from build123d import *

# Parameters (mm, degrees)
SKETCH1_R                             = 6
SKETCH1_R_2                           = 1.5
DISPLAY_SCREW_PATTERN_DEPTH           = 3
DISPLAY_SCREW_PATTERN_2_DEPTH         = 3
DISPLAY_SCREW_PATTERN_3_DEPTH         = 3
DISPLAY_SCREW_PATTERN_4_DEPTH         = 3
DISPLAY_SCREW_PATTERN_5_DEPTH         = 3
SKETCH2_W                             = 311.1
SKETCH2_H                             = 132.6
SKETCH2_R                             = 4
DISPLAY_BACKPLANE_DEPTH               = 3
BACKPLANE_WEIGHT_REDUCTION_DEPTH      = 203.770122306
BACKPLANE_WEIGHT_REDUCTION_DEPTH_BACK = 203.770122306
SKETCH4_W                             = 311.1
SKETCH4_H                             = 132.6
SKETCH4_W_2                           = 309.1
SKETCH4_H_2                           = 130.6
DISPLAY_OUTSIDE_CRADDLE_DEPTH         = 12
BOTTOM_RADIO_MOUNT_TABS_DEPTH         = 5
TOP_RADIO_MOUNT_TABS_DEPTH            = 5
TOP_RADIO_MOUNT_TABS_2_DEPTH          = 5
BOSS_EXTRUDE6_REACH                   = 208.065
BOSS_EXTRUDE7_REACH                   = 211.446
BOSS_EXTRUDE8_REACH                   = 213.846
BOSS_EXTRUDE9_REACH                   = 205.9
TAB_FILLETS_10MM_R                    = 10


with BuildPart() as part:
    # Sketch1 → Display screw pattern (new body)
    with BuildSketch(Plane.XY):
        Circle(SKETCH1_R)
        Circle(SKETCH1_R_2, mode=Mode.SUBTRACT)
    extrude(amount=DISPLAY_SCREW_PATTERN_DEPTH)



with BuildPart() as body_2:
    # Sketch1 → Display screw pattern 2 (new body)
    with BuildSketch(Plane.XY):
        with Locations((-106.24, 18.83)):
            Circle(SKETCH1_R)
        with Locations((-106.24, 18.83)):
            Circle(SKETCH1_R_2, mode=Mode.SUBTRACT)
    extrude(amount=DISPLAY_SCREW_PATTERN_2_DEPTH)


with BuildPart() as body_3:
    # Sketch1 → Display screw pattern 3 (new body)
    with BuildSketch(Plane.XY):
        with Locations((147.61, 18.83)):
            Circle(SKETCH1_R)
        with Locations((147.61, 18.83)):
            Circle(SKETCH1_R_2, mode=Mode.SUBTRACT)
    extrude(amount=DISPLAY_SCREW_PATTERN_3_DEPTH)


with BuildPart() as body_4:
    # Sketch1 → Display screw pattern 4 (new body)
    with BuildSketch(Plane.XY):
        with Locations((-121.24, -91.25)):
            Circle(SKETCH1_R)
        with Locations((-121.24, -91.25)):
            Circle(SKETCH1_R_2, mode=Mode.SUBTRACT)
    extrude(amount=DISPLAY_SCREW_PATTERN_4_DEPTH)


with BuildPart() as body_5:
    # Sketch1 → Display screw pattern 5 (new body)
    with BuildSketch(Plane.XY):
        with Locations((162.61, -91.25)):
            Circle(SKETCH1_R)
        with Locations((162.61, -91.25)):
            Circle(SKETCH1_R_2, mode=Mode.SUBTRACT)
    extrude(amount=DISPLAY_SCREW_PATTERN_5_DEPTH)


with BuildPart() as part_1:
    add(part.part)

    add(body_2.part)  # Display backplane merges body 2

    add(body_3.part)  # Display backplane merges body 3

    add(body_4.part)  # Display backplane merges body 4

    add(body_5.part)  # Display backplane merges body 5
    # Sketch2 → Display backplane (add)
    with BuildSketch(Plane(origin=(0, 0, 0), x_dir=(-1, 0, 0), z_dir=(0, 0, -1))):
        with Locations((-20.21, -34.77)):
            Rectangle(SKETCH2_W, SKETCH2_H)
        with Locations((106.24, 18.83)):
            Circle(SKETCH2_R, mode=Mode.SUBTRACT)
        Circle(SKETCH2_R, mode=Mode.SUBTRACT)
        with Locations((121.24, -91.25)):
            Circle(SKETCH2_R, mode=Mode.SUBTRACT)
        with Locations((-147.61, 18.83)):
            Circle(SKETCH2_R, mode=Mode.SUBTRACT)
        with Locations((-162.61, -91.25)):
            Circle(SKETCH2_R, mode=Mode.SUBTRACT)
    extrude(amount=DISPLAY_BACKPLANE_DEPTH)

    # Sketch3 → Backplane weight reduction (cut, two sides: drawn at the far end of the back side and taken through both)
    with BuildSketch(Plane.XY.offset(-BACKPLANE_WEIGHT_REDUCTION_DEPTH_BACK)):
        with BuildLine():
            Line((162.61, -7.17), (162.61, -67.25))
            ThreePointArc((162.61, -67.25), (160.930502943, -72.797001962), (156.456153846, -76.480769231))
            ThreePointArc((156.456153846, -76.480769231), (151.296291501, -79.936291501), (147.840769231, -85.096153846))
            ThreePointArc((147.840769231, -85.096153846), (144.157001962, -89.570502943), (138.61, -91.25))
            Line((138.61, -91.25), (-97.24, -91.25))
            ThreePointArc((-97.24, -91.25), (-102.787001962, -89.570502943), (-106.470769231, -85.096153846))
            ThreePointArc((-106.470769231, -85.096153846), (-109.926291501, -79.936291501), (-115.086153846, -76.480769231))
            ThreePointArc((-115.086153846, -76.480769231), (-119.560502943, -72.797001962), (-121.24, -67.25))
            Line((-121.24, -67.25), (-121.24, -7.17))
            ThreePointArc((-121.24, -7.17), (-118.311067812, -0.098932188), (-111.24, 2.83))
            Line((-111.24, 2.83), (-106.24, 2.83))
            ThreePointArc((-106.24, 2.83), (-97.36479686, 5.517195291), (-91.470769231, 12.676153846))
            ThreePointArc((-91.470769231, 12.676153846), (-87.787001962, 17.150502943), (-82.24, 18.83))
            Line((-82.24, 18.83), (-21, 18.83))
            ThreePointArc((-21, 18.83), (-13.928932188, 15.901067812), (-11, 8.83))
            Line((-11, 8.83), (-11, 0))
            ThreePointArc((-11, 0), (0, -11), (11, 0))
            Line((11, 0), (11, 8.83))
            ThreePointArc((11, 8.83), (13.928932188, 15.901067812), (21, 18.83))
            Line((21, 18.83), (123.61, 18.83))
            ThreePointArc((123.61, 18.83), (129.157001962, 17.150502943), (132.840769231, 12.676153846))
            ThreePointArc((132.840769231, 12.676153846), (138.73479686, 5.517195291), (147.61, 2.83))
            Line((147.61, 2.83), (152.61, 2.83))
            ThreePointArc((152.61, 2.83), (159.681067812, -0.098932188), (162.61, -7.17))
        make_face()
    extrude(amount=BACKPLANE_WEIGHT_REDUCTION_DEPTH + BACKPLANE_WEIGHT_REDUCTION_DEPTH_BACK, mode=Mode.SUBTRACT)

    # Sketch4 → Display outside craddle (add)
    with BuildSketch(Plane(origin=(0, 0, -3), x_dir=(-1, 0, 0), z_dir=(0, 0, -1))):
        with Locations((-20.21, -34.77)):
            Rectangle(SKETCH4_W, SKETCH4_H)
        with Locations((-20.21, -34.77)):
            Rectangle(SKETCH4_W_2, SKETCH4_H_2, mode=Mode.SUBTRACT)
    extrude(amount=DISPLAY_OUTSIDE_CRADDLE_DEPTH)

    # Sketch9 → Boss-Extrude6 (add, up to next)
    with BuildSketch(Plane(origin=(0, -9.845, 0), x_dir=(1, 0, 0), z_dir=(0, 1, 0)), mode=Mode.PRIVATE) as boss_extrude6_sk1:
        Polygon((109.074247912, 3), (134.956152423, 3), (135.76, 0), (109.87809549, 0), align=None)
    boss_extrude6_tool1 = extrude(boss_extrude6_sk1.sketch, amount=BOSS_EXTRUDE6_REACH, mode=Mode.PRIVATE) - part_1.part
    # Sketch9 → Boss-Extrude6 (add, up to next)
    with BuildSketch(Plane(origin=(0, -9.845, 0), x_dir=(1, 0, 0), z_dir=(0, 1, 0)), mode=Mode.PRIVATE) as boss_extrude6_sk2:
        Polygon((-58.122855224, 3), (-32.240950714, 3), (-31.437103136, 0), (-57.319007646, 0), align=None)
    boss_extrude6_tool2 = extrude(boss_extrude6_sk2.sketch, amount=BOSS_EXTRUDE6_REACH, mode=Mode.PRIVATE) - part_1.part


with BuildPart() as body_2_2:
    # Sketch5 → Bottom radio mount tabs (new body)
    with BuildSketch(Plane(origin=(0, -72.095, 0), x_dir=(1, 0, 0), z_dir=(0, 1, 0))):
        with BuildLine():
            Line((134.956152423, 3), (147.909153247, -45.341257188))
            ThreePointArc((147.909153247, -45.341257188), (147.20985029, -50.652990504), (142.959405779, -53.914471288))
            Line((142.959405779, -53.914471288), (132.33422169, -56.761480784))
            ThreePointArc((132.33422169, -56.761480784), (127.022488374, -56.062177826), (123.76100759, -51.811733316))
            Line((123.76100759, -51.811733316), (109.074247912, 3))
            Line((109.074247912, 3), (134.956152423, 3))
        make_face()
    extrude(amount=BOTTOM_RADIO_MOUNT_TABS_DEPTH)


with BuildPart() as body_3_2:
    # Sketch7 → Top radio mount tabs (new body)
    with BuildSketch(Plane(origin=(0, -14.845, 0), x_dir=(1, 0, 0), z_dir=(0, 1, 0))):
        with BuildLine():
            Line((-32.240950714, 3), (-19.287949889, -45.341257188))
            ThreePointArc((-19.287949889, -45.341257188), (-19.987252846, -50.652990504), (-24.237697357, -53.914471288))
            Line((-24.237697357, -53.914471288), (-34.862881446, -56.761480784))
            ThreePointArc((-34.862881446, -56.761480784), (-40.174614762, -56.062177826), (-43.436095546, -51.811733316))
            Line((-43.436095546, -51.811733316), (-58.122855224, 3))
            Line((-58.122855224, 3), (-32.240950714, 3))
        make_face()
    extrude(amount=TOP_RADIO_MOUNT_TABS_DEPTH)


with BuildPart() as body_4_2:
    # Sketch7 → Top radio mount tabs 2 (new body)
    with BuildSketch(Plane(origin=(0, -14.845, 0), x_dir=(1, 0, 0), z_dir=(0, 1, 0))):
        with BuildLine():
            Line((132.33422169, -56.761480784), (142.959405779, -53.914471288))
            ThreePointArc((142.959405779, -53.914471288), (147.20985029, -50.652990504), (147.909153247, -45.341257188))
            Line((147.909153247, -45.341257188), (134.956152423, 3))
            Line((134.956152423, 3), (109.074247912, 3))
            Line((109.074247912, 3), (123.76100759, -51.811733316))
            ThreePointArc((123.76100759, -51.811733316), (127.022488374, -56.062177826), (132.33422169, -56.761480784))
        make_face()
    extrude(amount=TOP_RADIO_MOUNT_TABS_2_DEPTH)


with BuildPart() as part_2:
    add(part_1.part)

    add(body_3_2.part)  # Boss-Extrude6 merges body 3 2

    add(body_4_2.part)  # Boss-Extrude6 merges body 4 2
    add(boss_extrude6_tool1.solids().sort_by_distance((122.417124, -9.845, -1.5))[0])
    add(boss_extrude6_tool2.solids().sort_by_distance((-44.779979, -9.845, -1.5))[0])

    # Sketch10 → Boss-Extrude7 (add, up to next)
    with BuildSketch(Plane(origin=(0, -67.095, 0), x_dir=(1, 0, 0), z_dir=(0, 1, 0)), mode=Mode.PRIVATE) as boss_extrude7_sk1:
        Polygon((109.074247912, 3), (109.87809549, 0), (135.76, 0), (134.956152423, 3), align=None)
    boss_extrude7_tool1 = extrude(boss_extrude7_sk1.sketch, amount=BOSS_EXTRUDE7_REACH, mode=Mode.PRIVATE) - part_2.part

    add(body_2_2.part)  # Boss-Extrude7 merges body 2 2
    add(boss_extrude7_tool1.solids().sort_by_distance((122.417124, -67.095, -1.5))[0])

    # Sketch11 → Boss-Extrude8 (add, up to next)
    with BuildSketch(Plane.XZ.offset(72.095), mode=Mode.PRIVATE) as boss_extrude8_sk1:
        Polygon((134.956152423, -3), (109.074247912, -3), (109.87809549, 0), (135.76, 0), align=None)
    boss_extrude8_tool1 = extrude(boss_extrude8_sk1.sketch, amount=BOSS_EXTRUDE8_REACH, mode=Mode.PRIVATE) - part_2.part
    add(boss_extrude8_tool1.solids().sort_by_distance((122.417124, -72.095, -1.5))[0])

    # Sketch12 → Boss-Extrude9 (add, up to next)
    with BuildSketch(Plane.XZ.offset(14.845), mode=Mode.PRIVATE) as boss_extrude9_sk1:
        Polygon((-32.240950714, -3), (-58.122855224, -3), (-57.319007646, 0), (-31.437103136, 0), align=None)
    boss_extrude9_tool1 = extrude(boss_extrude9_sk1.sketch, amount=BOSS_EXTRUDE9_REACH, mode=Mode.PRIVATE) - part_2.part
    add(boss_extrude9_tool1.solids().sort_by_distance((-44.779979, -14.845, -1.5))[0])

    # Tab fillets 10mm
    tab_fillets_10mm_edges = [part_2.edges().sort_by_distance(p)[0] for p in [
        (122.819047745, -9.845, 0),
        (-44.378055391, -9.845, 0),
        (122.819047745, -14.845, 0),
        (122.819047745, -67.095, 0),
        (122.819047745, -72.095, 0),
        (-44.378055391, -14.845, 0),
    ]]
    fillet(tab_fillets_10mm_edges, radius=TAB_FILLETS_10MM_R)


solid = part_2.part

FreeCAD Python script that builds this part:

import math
import FreeCAD as App
import Part
import Sketcher
from FreeCAD import Vector
Q = App.Units.Quantity


def edges_at(feature, points):
    """Names of the edges that pass closest to the given points."""
    edges = feature.Shape.Edges
    near = lambda p: min(range(len(edges)), key=lambda i: edges[i].distToShape(Part.Vertex(*p))[0])
    return sorted({f"Edge{near(p) + 1}" for p in points})


def add_polygon(sketch, points):
    """Adds a closed chain of lines whose ends are joined by coincident constraints."""
    first, n = sketch.GeometryCount, len(points)
    for a, b in zip(points, points[1:] + points[:1]):
        sketch.addGeometry(Part.LineSegment(App.Vector(*a, 0), App.Vector(*b, 0)), False)
    for i in range(n):
        sketch.addConstraint(Sketcher.Constraint("Coincident", first + i, 2, first + (i + 1) % n, 1))

doc = App.newDocument("Part")
body = doc.addObject("PartDesign::Body", "Body")

# Sketch on XY plane
sketch1 = body.newObject("Sketcher::SketchObject", "Sketch")
sketch1.AttachmentSupport = (doc.getObject("XY_Plane"), [""])
sketch1.MapMode = "FlatFace"
sketch1.addGeometry(Part.Circle(Vector(0, 0, 0), Vector(0, 0, 1), 6), False)
sketch1.addGeometry(Part.Circle(Vector(0, 0, 0), Vector(0, 0, 1), 1.5), False)
sketch1.addConstraint(Sketcher.Constraint("Coincident", 0, 3, -1, 1))
sketch1.addConstraint(Sketcher.Constraint("Coincident", 1, 3, -1, 1))
sketch1.addConstraint(Sketcher.Constraint("Diameter", 0, Q("12 mm")))
sketch1.addConstraint(Sketcher.Constraint("Diameter", 1, Q("3 mm")))
pad1 = body.newObject("PartDesign::Pad", "Pad")
pad1.Profile = sketch1
pad1.Length = 3
body2 = doc.addObject("PartDesign::Body", "Body001")

# Sketch on XY plane
sketch2 = body2.newObject("Sketcher::SketchObject", "Sketch001")
sketch2.AttachmentSupport = (doc.getObject("XY_Plane001"), [""])
sketch2.MapMode = "FlatFace"
sketch2.addGeometry(Part.Circle(Vector(-106.24, 18.83, 0), Vector(0, 0, 1), 6), False)
sketch2.addGeometry(Part.Circle(Vector(-106.24, 18.83, 0), Vector(0, 0, 1), 1.5), False)
sketch2.addConstraint(Sketcher.Constraint("Coincident", 1, 3, 0, 3))
sketch2.addConstraint(Sketcher.Constraint("Diameter", 0, Q("12 mm")))
sketch2.addConstraint(Sketcher.Constraint("Diameter", 1, Q("3 mm")))
sketch2.addConstraint(Sketcher.Constraint("DistanceX", 0, 3, -1, 1, Q("106.24 mm")))
sketch2.addConstraint(Sketcher.Constraint("DistanceY", -1, 1, 0, 3, Q("18.83 mm")))
pad2 = body2.newObject("PartDesign::Pad", "Pad001")
pad2.Profile = sketch2
pad2.Length = 3
body3 = doc.addObject("PartDesign::Body", "Body002")

# Sketch on XY plane
sketch3 = body3.newObject("Sketcher::SketchObject", "Sketch002")
sketch3.AttachmentSupport = (doc.getObject("XY_Plane002"), [""])
sketch3.MapMode = "FlatFace"
sketch3.addGeometry(Part.Circle(Vector(147.61, 18.83, 0), Vector(0, 0, 1), 6), False)
sketch3.addGeometry(Part.Circle(Vector(147.61, 18.83, 0), Vector(0, 0, 1), 1.5), False)
sketch3.addConstraint(Sketcher.Constraint("Coincident", 1, 3, 0, 3))
sketch3.addConstraint(Sketcher.Constraint("Diameter", 0, Q("12 mm")))
sketch3.addConstraint(Sketcher.Constraint("Diameter", 1, Q("3 mm")))
sketch3.addConstraint(Sketcher.Constraint("DistanceX", -1, 1, 0, 3, Q("147.61 mm")))
sketch3.addConstraint(Sketcher.Constraint("DistanceY", -1, 1, 0, 3, Q("18.83 mm")))
pad3 = body3.newObject("PartDesign::Pad", "Pad002")
pad3.Profile = sketch3
pad3.Length = 3
body4 = doc.addObject("PartDesign::Body", "Body003")

# Sketch on XY plane
sketch4 = body4.newObject("Sketcher::SketchObject", "Sketch003")
sketch4.AttachmentSupport = (doc.getObject("XY_Plane003"), [""])
sketch4.MapMode = "FlatFace"
sketch4.addGeometry(Part.Circle(Vector(-121.24, -91.25, 0), Vector(0, 0, 1), 6), False)
sketch4.addGeometry(Part.Circle(Vector(-121.24, -91.25, 0), Vector(0, 0, 1), 1.5), False)
sketch4.addConstraint(Sketcher.Constraint("Coincident", 1, 3, 0, 3))
sketch4.addConstraint(Sketcher.Constraint("Diameter", 0, Q("12 mm")))
sketch4.addConstraint(Sketcher.Constraint("Diameter", 1, Q("3 mm")))
sketch4.addConstraint(Sketcher.Constraint("DistanceX", 0, 3, -1, 1, Q("121.24 mm")))
sketch4.addConstraint(Sketcher.Constraint("DistanceY", 0, 3, -1, 1, Q("91.25 mm")))
pad4 = body4.newObject("PartDesign::Pad", "Pad003")
pad4.Profile = sketch4
pad4.Length = 3
body5 = doc.addObject("PartDesign::Body", "Body004")

# Sketch on XY plane
sketch5 = body5.newObject("Sketcher::SketchObject", "Sketch004")
sketch5.AttachmentSupport = (doc.getObject("XY_Plane004"), [""])
sketch5.MapMode = "FlatFace"
sketch5.addGeometry(Part.Circle(Vector(162.61, -91.25, 0), Vector(0, 0, 1), 6), False)
sketch5.addGeometry(Part.Circle(Vector(162.61, -91.25, 0), Vector(0, 0, 1), 1.5), False)
sketch5.addConstraint(Sketcher.Constraint("Coincident", 1, 3, 0, 3))
sketch5.addConstraint(Sketcher.Constraint("Diameter", 0, Q("12 mm")))
sketch5.addConstraint(Sketcher.Constraint("Diameter", 1, Q("3 mm")))
sketch5.addConstraint(Sketcher.Constraint("DistanceX", -1, 1, 0, 3, Q("162.61 mm")))
sketch5.addConstraint(Sketcher.Constraint("DistanceY", 0, 3, -1, 1, Q("91.25 mm")))
pad5 = body5.newObject("PartDesign::Pad", "Pad004")
pad5.Profile = sketch5
pad5.Length = 3
body.AllowCompound = True
doc.recompute()

boolean = body.newObject("PartDesign::Boolean", "Boolean")
boolean.Type = "Fuse"
boolean.addObjects([body2])
doc.recompute()

boolean2 = body.newObject("PartDesign::Boolean", "Boolean001")
boolean2.Type = "Fuse"
boolean2.addObjects([body3])
doc.recompute()

boolean3 = body.newObject("PartDesign::Boolean", "Boolean002")
boolean3.Type = "Fuse"
boolean3.addObjects([body4])
doc.recompute()

boolean4 = body.newObject("PartDesign::Boolean", "Boolean003")
boolean4.Type = "Fuse"
boolean4.addObjects([body5])

# Sketch on XY plane
sketch6 = body.newObject("Sketcher::SketchObject", "Sketch005")
sketch6.AttachmentSupport = (doc.getObject("XY_Plane"), [""])
sketch6.MapMode = "FlatFace"
add_polygon(sketch6, [(175.76, 31.53), (175.76, -101.07), (-135.34, -101.07), (-135.34, 31.53)])  # lines 0-3
sketch6.addGeometry(Part.Circle(Vector(162.61, -91.25, 0), Vector(0, 0, 1), 4), False)  # 4
sketch6.addGeometry(Part.Circle(Vector(-121.24, -91.25, 0), Vector(0, 0, 1), 4), False)  # 5
sketch6.addGeometry(Part.Circle(Vector(147.61, 18.83, 0), Vector(0, 0, 1), 4), False)  # 6
sketch6.addGeometry(Part.Circle(Vector(0, 0, 0), Vector(0, 0, 1), 4), False)  # 7
sketch6.addGeometry(Part.Circle(Vector(-106.24, 18.83, 0), Vector(0, 0, 1), 4), False)  # 8
sketch6.addConstraint(Sketcher.Constraint("Vertical", 0))
sketch6.addConstraint(Sketcher.Constraint("Horizontal", 1))
sketch6.addConstraint(Sketcher.Constraint("Vertical", 2))
sketch6.addConstraint(Sketcher.Constraint("Horizontal", 3))
sketch6.addConstraint(Sketcher.Constraint("Coincident", 7, 3, -1, 1))
sketch6.addConstraint(Sketcher.Constraint("Equal", 4, 5))
sketch6.addConstraint(Sketcher.Constraint("Equal", 5, 6))
sketch6.addConstraint(Sketcher.Constraint("Equal", 6, 7))
sketch6.addConstraint(Sketcher.Constraint("Equal", 7, 8))
sketch6.addConstraint(Sketcher.Constraint("Horizontal", 4, 3, 5, 3))
sketch6.addConstraint(Sketcher.Constraint("Horizontal", 6, 3, 8, 3))
sketch6.addConstraint(Sketcher.Constraint("Diameter", 4, Q("8 mm")))
sketch6.addConstraint(Sketcher.Constraint("DistanceX", 1, 2, 1, 1, Q("311.1 mm")))
sketch6.addConstraint(Sketcher.Constraint("DistanceY", 0, 2, 0, 1, Q("132.6 mm")))
sketch6.addConstraint(Sketcher.Constraint("DistanceX", 6, 3, 4, 3, Q("15 mm")))
sketch6.addConstraint(Sketcher.Constraint("DistanceX", 5, 3, 8, 3, Q("15 mm")))
sketch6.addConstraint(Sketcher.Constraint("DistanceX", 5, 3, 0, 2, Q("297 mm")))
sketch6.addConstraint(Sketcher.Constraint("DistanceY", 0, 2, 6, 3, Q("119.9 mm")))
sketch6.addConstraint(Sketcher.Constraint("DistanceX", -1, 1, 4, 3, Q("162.61 mm")))
sketch6.addConstraint(Sketcher.Constraint("DistanceY", 4, 3, -1, 1, Q("91.25 mm")))
sketch6.addConstraint(Sketcher.Constraint("DistanceX", 5, 3, -1, 1, Q("121.24 mm")))
sketch6.addConstraint(Sketcher.Constraint("DistanceY", -1, 1, 6, 3, Q("18.83 mm")))
pad6 = body.newObject("PartDesign::Pad", "Pad005")
pad6.Profile = sketch6
pad6.Length = 3
pad6.Reversed = True

# Sketch on XY plane
sketch7 = body.newObject("Sketcher::SketchObject", "Sketch006")
sketch7.AttachmentSupport = (doc.getObject("XY_Plane"), [""])
sketch7.MapMode = "FlatFace"
sketch7.addGeometry(Part.LineSegment(Vector(162.61, -67.25, 0), Vector(162.61, -7.17, 0)), False)
sketch7.addGeometry(Part.ArcOfCircle(Part.Circle(Vector(152.61, -7.17, 0), Vector(0, 0, 1), 10), math.radians(0), math.radians(90)), False)
sketch7.addGeometry(Part.LineSegment(Vector(152.61, 2.83, 0), Vector(147.61, 2.83, 0)), False)
sketch7.addGeometry(Part.ArcOfCircle(Part.Circle(Vector(147.61, 18.83, 0), Vector(0, 0, 1), 16), math.radians(-157.380135), math.radians(-90)), False)
sketch7.addGeometry(Part.ArcOfCircle(Part.Circle(Vector(123.61, 8.83, 0), Vector(0, 0, 1), 10), math.radians(22.619865), math.radians(90)), False)
sketch7.addGeometry(Part.LineSegment(Vector(123.61, 18.83, 0), Vector(21, 18.83, 0)), False)
sketch7.addGeometry(Part.ArcOfCircle(Part.Circle(Vector(21, 8.83, 0), Vector(0, 0, 1), 10), math.radians(90), math.radians(180)), False)
sketch7.addGeometry(Part.LineSegment(Vector(11, 8.83, 0), Vector(11, 0, 0)), False)
sketch7.addGeometry(Part.ArcOfCircle(Part.Circle(Vector(0, 0, 0), Vector(0, 0, 1), 11), math.radians(180), math.radians(360)), False)
sketch7.addGeometry(Part.LineSegment(Vector(-11, 0, 0), Vector(-11, 8.83, 0)), False)
sketch7.addGeometry(Part.ArcOfCircle(Part.Circle(Vector(-21, 8.83, 0), Vector(0, 0, 1), 10), math.radians(0), math.radians(90)), False)
sketch7.addGeometry(Part.LineSegment(Vector(-21, 18.83, 0), Vector(-82.24, 18.83, 0)), False)
sketch7.addGeometry(Part.ArcOfCircle(Part.Circle(Vector(-82.24, 8.83, 0), Vector(0, 0, 1), 10), math.radians(90), math.radians(157.380135)), False)
sketch7.addGeometry(Part.ArcOfCircle(Part.Circle(Vector(-106.24, 18.83, 0), Vector(0, 0, 1), 16), math.radians(-90), math.radians(-22.619865)), False)
sketch7.addGeometry(Part.LineSegment(Vector(-106.24, 2.83, 0), Vector(-111.24, 2.83, 0)), False)
sketch7.addGeometry(Part.ArcOfCircle(Part.Circle(Vector(-111.24, -7.17, 0), Vector(0, 0, 1), 10), math.radians(90), math.radians(180)), False)
sketch7.addGeometry(Part.LineSegment(Vector(-121.24, -7.17, 0), Vector(-121.24, -67.25, 0)), False)
sketch7.addGeometry(Part.ArcOfCircle(Part.Circle(Vector(-111.24, -67.25, 0), Vector(0, 0, 1), 10), math.radians(-180), math.radians(-112.619865)), False)
sketch7.addGeometry(Part.ArcOfCircle(Part.Circle(Vector(-121.24, -91.25, 0), Vector(0, 0, 1), 16), math.radians(22.619865), math.radians(67.380135)), False)
sketch7.addGeometry(Part.ArcOfCircle(Part.Circle(Vector(-97.24, -81.25, 0), Vector(0, 0, 1), 10), math.radians(-157.380135), math.radians(-90)), False)
sketch7.addGeometry(Part.LineSegment(Vector(-97.24, -91.25, 0), Vector(138.61, -91.25, 0)), False)
sketch7.addGeometry(Part.ArcOfCircle(Part.Circle(Vector(138.61, -81.25, 0), Vector(0, 0, 1), 10), math.radians(-90), math.radians(-22.619865)), False)
sketch7.addGeometry(Part.ArcOfCircle(Part.Circle(Vector(162.61, -91.25, 0), Vector(0, 0, 1), 16), math.radians(112.619865), math.radians(157.380135)), False)
sketch7.addGeometry(Part.ArcOfCircle(Part.Circle(Vector(152.61, -67.25, 0), Vector(0, 0, 1), 10), math.radians(-67.380135), math.radians(0)), False)
sketch7.addConstraint(Sketcher.Constraint("Tangent", 0, 2, 1, 1))
sketch7.addConstraint(Sketcher.Constraint("Tangent", 1, 2, 2, 1))
sketch7.addConstraint(Sketcher.Constraint("Tangent", 2, 2, 3, 2))
sketch7.addConstraint(Sketcher.Constraint("Tangent", 3, 1, 4, 1))
sketch7.addConstraint(Sketcher.Constraint("Tangent", 4, 2, 5, 1))
sketch7.addConstraint(Sketcher.Constraint("Tangent", 5, 2, 6, 1))
sketch7.addConstraint(Sketcher.Constraint("Tangent", 6, 2, 7, 1))
sketch7.addConstraint(Sketcher.Constraint("Tangent", 7, 2, 8, 2))
sketch7.addConstraint(Sketcher.Constraint("Tangent", 8, 1, 9, 1))
sketch7.addConstraint(Sketcher.Constraint("Tangent", 9, 2, 10, 1))
sketch7.addConstraint(Sketcher.Constraint("Tangent", 10, 2, 11, 1))
sketch7.addConstraint(Sketcher.Constraint("Tangent", 11, 2, 12, 1))
sketch7.addConstraint(Sketcher.Constraint("Tangent", 12, 2, 13, 2))
sketch7.addConstraint(Sketcher.Constraint("Tangent", 13, 1, 14, 1))
sketch7.addConstraint(Sketcher.Constraint("Tangent", 14, 2, 15, 1))
sketch7.addConstraint(Sketcher.Constraint("Tangent", 15, 2, 16, 1))
sketch7.addConstraint(Sketcher.Constraint("Tangent", 16, 2, 17, 1))
sketch7.addConstraint(Sketcher.Constraint("Tangent", 17, 2, 18, 2))
sketch7.addConstraint(Sketcher.Constraint("Tangent", 18, 1, 19, 1))
sketch7.addConstraint(Sketcher.Constraint("Tangent", 19, 2, 20, 1))
sketch7.addConstraint(Sketcher.Constraint("Tangent", 20, 2, 21, 1))
sketch7.addConstraint(Sketcher.Constraint("Tangent", 21, 2, 22, 2))
sketch7.addConstraint(Sketcher.Constraint("Tangent", 22, 1, 23, 1))
sketch7.addConstraint(Sketcher.Constraint("Tangent", 23, 2, 0, 1))
sketch7.addConstraint(Sketcher.Constraint("Vertical", 0))
sketch7.addConstraint(Sketcher.Constraint("Horizontal", 2))
sketch7.addConstraint(Sketcher.Constraint("Horizontal", 5))
sketch7.addConstraint(Sketcher.Constraint("Vertical", 7))
sketch7.addConstraint(Sketcher.Constraint("Vertical", 9))
sketch7.addConstraint(Sketcher.Constraint("Horizontal", 11))
sketch7.addConstraint(Sketcher.Constraint("Horizontal", 14))
sketch7.addConstraint(Sketcher.Constraint("Vertical", 16))
sketch7.addConstraint(Sketcher.Constraint("Horizontal", 20))
sketch7.addConstraint(Sketcher.Constraint("Coincident", 8, 3, -1, 1))
sketch7.addConstraint(Sketcher.Constraint("Equal", 1, 4))
sketch7.addConstraint(Sketcher.Constraint("Equal", 4, 6))
sketch7.addConstraint(Sketcher.Constraint("Equal", 6, 10))
sketch7.addConstraint(Sketcher.Constraint("Equal", 10, 12))
sketch7.addConstraint(Sketcher.Constraint("Equal", 3, 13))
sketch7.addConstraint(Sketcher.Constraint("Equal", 12, 15))
sketch7.addConstraint(Sketcher.Constraint("Equal", 15, 17))
sketch7.addConstraint(Sketcher.Constraint("Equal", 13, 18))
sketch7.addConstraint(Sketcher.Constraint("Equal", 17, 19))
sketch7.addConstraint(Sketcher.Constraint("Equal", 19, 21))
sketch7.addConstraint(Sketcher.Constraint("Equal", 18, 22))
sketch7.addConstraint(Sketcher.Constraint("Equal", 21, 23))
sketch7.addConstraint(Sketcher.Constraint("Horizontal", 6, 3, 10, 3))
sketch7.addConstraint(Sketcher.Constraint("Horizontal", 3, 3, 13, 3))
sketch7.addConstraint(Sketcher.Constraint("Horizontal", 18, 3, 22, 3))
sketch7.addConstraint(Sketcher.Constraint("Horizontal", 17, 3, 23, 3))
sketch7.addConstraint(Sketcher.Constraint("Horizontal", 13, 3, 4, 2))
sketch7.addConstraint(Sketcher.Constraint("Horizontal", 22, 3, 19, 2))
sketch7.addConstraint(Sketcher.Constraint("Vertical", 22, 3, 0, 2))
sketch7.addConstraint(Sketcher.Constraint("Equal", 2, 14))
sketch7.addConstraint(Sketcher.Constraint("Radius", 1, Q("10 mm")))
sketch7.addConstraint(Sketcher.Constraint("Radius", 3, Q("16 mm")))
sketch7.addConstraint(Sketcher.Constraint("Radius", 8, Q("11 mm")))
sketch7.addConstraint(Sketcher.Constraint("DistanceX", 2, 2, 2, 1, Q("5 mm")))
sketch7.addConstraint(Sketcher.Constraint("DistanceX", 5, 2, 5, 1, Q("102.61 mm")))
sketch7.addConstraint(Sketcher.Constraint("DistanceX", 11, 2, 11, 1, Q("61.24 mm")))
sketch7.addConstraint(Sketcher.Constraint("DistanceY", 0, 1, 0, 2, Q("60.08 mm")))
sketch7.addConstraint(Sketcher.Constraint("DistanceY", 7, 2, 7, 1, Q("8.83 mm")))
pocket1 = body.newObject("PartDesign::Pocket", "Pocket")
pocket1.Profile = sketch7
pocket1.Type = "ThroughAll"
pocket1.Midplane = True

# Sketch on XY plane
sketch8 = body.newObject("Sketcher::SketchObject", "Sketch007")
sketch8.AttachmentSupport = (doc.getObject("XY_Plane"), [""])
sketch8.MapMode = "FlatFace"
sketch8.AttachmentOffset = App.Placement(Vector(0, 0, -3), App.Rotation())
add_polygon(sketch8, [(175.76, 31.53), (175.76, -101.07), (-135.34, -101.07), (-135.34, 31.53)])  # lines 0-3
add_polygon(sketch8, [(-134.34, -100.07), (174.76, -100.07), (174.76, 30.53), (-134.34, 30.53)])  # lines 4-7
sketch8.addConstraint(Sketcher.Constraint("Vertical", 0))
sketch8.addConstraint(Sketcher.Constraint("Horizontal", 1))
sketch8.addConstraint(Sketcher.Constraint("Vertical", 2))
sketch8.addConstraint(Sketcher.Constraint("Horizontal", 3))
sketch8.addConstraint(Sketcher.Constraint("Horizontal", 4))
sketch8.addConstraint(Sketcher.Constraint("Vertical", 5))
sketch8.addConstraint(Sketcher.Constraint("Horizontal", 6))
sketch8.addConstraint(Sketcher.Constraint("Vertical", 7))
sketch8.addConstraint(Sketcher.Constraint("DistanceX", 1, 2, 1, 1, Q("311.1 mm")))
sketch8.addConstraint(Sketcher.Constraint("DistanceX", 4, 1, 4, 2, Q("309.1 mm")))
sketch8.addConstraint(Sketcher.Constraint("DistanceY", 0, 2, 0, 1, Q("132.6 mm")))
sketch8.addConstraint(Sketcher.Constraint("DistanceY", 5, 1, 5, 2, Q("130.6 mm")))
sketch8.addConstraint(Sketcher.Constraint("DistanceX", 4, 2, 0, 2, Q("1 mm")))
sketch8.addConstraint(Sketcher.Constraint("DistanceY", 0, 2, 4, 2, Q("1 mm")))
sketch8.addConstraint(Sketcher.Constraint("DistanceX", -1, 1, 0, 2, Q("175.76 mm")))
sketch8.addConstraint(Sketcher.Constraint("DistanceY", 0, 2, -1, 1, Q("101.07 mm")))
pad7 = body.newObject("PartDesign::Pad", "Pad006")
pad7.Profile = sketch8
pad7.Length = 12
pad7.Reversed = True
body6 = doc.addObject("PartDesign::Body", "Body005")

# Sketch on XZ plane
sketch9 = body6.newObject("Sketcher::SketchObject", "Sketch008")
sketch9.AttachmentSupport = (doc.getObject("XZ_Plane005"), [""])
sketch9.MapMode = "FlatFace"
sketch9.AttachmentOffset = App.Placement(Vector(0, 0, 72.095), App.Rotation())
sketch9.addGeometry(Part.LineSegment(Vector(147.909153, 45.341257, 0), Vector(134.956152, -3, 0)), False)
sketch9.addGeometry(Part.LineSegment(Vector(134.956152, -3, 0), Vector(109.074248, -3, 0)), False)
sketch9.addGeometry(Part.LineSegment(Vector(109.074248, -3, 0), Vector(123.761008, 51.811733, 0)), False)
sketch9.addGeometry(Part.ArcOfCircle(Part.Circle(Vector(130.522488, 50, 0), Vector(0, 0, 1), 7), math.radians(75), math.radians(165)), False)
sketch9.addGeometry(Part.LineSegment(Vector(132.334222, 56.761481, 0), Vector(142.959406, 53.914471, 0)), False)
sketch9.addGeometry(Part.ArcOfCircle(Part.Circle(Vector(141.147672, 47.152991, 0), Vector(0, 0, 1), 7), math.radians(-15), math.radians(75)), False)
sketch9.addConstraint(Sketcher.Constraint("Coincident", 0, 2, 1, 1))
sketch9.addConstraint(Sketcher.Constraint("Coincident", 1, 2, 2, 1))
sketch9.addConstraint(Sketcher.Constraint("Tangent", 2, 2, 3, 2))
sketch9.addConstraint(Sketcher.Constraint("Tangent", 3, 1, 4, 1))
sketch9.addConstraint(Sketcher.Constraint("Tangent", 4, 2, 5, 2))
sketch9.addConstraint(Sketcher.Constraint("Tangent", 5, 1, 0, 1))
sketch9.addConstraint(Sketcher.Constraint("Horizontal", 1))
sketch9.addConstraint(Sketcher.Constraint("Equal", 3, 5))
sketch9.addConstraint(Sketcher.Constraint("Parallel", 0, 2))
sketch9.addConstraint(Sketcher.Constraint("Perpendicular", 2, 4))
sketch9.addConstraint(Sketcher.Constraint("Radius", 3, Q("7 mm")))
sketch9.addConstraint(Sketcher.Constraint("Angle", 0, Q("-105 deg")))
sketch9.addConstraint(Sketcher.Constraint("Distance", 4, Q("11 mm")))
sketch9.addConstraint(Sketcher.Constraint("DistanceY", -1, 1, 3, 3, Q("50 mm")))
sketch9.addConstraint(Sketcher.Constraint("DistanceY", 0, 2, -1, 1, Q("3 mm")))
sketch9.addConstraint(Sketcher.Constraint("DistanceX", -1, 1, 3, 3, Q("130.522488 mm")))
pad8 = body6.newObject("PartDesign::Pad", "Pad007")
pad8.Profile = sketch9
pad8.Length = 5
pad8.Reversed = True
body7 = doc.addObject("PartDesign::Body", "Body006")

# Sketch on XZ plane
sketch10 = body7.newObject("Sketcher::SketchObject", "Sketch009")
sketch10.AttachmentSupport = (doc.getObject("XZ_Plane006"), [""])
sketch10.MapMode = "FlatFace"
sketch10.AttachmentOffset = App.Placement(Vector(0, 0, 14.845), App.Rotation())
sketch10.addGeometry(Part.LineSegment(Vector(-19.28795, 45.341257, 0), Vector(-32.240951, -3, 0)), False)
sketch10.addGeometry(Part.LineSegment(Vector(-32.240951, -3, 0), Vector(-58.122855, -3, 0)), False)
sketch10.addGeometry(Part.LineSegment(Vector(-58.122855, -3, 0), Vector(-43.436096, 51.811733, 0)), False)
sketch10.addGeometry(Part.ArcOfCircle(Part.Circle(Vector(-36.674615, 50, 0), Vector(0, 0, 1), 7), math.radians(75), math.radians(165)), False)
sketch10.addGeometry(Part.LineSegment(Vector(-34.862881, 56.761481, 0), Vector(-24.237697, 53.914471, 0)), False)
sketch10.addGeometry(Part.ArcOfCircle(Part.Circle(Vector(-26.049431, 47.152991, 0), Vector(0, 0, 1), 7), math.radians(-15), math.radians(75)), False)
sketch10.addConstraint(Sketcher.Constraint("Coincident", 0, 2, 1, 1))
sketch10.addConstraint(Sketcher.Constraint("Coincident", 1, 2, 2, 1))
sketch10.addConstraint(Sketcher.Constraint("Tangent", 2, 2, 3, 2))
sketch10.addConstraint(Sketcher.Constraint("Tangent", 3, 1, 4, 1))
sketch10.addConstraint(Sketcher.Constraint("Tangent", 4, 2, 5, 2))
sketch10.addConstraint(Sketcher.Constraint("Tangent", 5, 1, 0, 1))
sketch10.addConstraint(Sketcher.Constraint("Horizontal", 1))
sketch10.addConstraint(Sketcher.Constraint("Equal", 3, 5))
sketch10.addConstraint(Sketcher.Constraint("Parallel", 0, 2))
sketch10.addConstraint(Sketcher.Constraint("Perpendicular", 2, 4))
sketch10.addConstraint(Sketcher.Constraint("Radius", 3, Q("7 mm")))
sketch10.addConstraint(Sketcher.Constraint("Angle", 0, Q("-105 deg")))
sketch10.addConstraint(Sketcher.Constraint("Distance", 4, Q("11 mm")))
sketch10.addConstraint(Sketcher.Constraint("DistanceY", -1, 1, 3, 3, Q("50 mm")))
sketch10.addConstraint(Sketcher.Constraint("DistanceY", 0, 2, -1, 1, Q("3 mm")))
sketch10.addConstraint(Sketcher.Constraint("DistanceX", 5, 3, -1, 1, Q("26.049431 mm")))
pad9 = body7.newObject("PartDesign::Pad", "Pad008")
pad9.Profile = sketch10
pad9.Length = 5
pad9.Reversed = True
body8 = doc.addObject("PartDesign::Body", "Body007")

# Sketch on XZ plane
sketch11 = body8.newObject("Sketcher::SketchObject", "Sketch010")
sketch11.AttachmentSupport = (doc.getObject("XZ_Plane007"), [""])
sketch11.MapMode = "FlatFace"
sketch11.AttachmentOffset = App.Placement(Vector(0, 0, 14.845), App.Rotation())
sketch11.addGeometry(Part.LineSegment(Vector(132.334222, 56.761481, 0), Vector(142.959406, 53.914471, 0)), False)
sketch11.addGeometry(Part.ArcOfCircle(Part.Circle(Vector(141.147672, 47.152991, 0), Vector(0, 0, 1), 7), math.radians(-15), math.radians(75)), False)
sketch11.addGeometry(Part.LineSegment(Vector(147.909153, 45.341257, 0), Vector(134.956152, -3, 0)), False)
sketch11.addGeometry(Part.LineSegment(Vector(134.956152, -3, 0), Vector(109.074248, -3, 0)), False)
sketch11.addGeometry(Part.LineSegment(Vector(109.074248, -3, 0), Vector(123.761008, 51.811733, 0)), False)
sketch11.addGeometry(Part.ArcOfCircle(Part.Circle(Vector(130.522488, 50, 0), Vector(0, 0, 1), 7), math.radians(75), math.radians(165)), False)
sketch11.addConstraint(Sketcher.Constraint("Tangent", 0, 2, 1, 2))
sketch11.addConstraint(Sketcher.Constraint("Tangent", 1, 1, 2, 1))
sketch11.addConstraint(Sketcher.Constraint("Coincident", 2, 2, 3, 1))
sketch11.addConstraint(Sketcher.Constraint("Coincident", 3, 2, 4, 1))
sketch11.addConstraint(Sketcher.Constraint("Tangent", 4, 2, 5, 2))
sketch11.addConstraint(Sketcher.Constraint("Tangent", 5, 1, 0, 1))
sketch11.addConstraint(Sketcher.Constraint("Horizontal", 3))
sketch11.addConstraint(Sketcher.Constraint("Equal", 1, 5))
sketch11.addConstraint(Sketcher.Constraint("Perpendicular", 0, 2))
sketch11.addConstraint(Sketcher.Constraint("Parallel", 2, 4))
sketch11.addConstraint(Sketcher.Constraint("Radius", 1, Q("7 mm")))
sketch11.addConstraint(Sketcher.Constraint("Angle", 0, Q("-15 deg")))
sketch11.addConstraint(Sketcher.Constraint("Distance", 0, Q("11 mm")))
sketch11.addConstraint(Sketcher.Constraint("DistanceY", -1, 1, 5, 3, Q("50 mm")))
sketch11.addConstraint(Sketcher.Constraint("DistanceY", 2, 2, -1, 1, Q("3 mm")))
sketch11.addConstraint(Sketcher.Constraint("DistanceX", -1, 1, 5, 3, Q("130.522488 mm")))
pad10 = body8.newObject("PartDesign::Pad", "Pad009")
pad10.Profile = sketch11
pad10.Length = 5
pad10.Reversed = True
body.AllowCompound = True
doc.recompute()

boolean5 = body.newObject("PartDesign::Boolean", "Boolean004")
boolean5.Type = "Fuse"
boolean5.addObjects([body7])
doc.recompute()

boolean6 = body.newObject("PartDesign::Boolean", "Boolean005")
boolean6.Type = "Fuse"
boolean6.addObjects([body8])

# Sketch on XZ plane
sketch12 = body.newObject("Sketcher::SketchObject", "Sketch011")
sketch12.AttachmentSupport = (doc.getObject("XZ_Plane"), [""])
sketch12.MapMode = "FlatFace"
sketch12.AttachmentOffset = App.Placement(Vector(0, 0, 9.845), App.Rotation())
add_polygon(sketch12, [(134.956152, -3), (109.074248, -3), (109.878095, 0), (135.76, 0)])  # lines 0-3
sketch12.addConstraint(Sketcher.Constraint("Horizontal", 0))
sketch12.addConstraint(Sketcher.Constraint("Horizontal", 2))
sketch12.addConstraint(Sketcher.Constraint("PointOnObject", 1, 2, -1))
sketch12.addConstraint(Sketcher.Constraint("Parallel", 1, 3))
sketch12.addConstraint(Sketcher.Constraint("Angle", 1, Q("75 deg")))
sketch12.addConstraint(Sketcher.Constraint("DistanceY", 0, 2, -1, 1, Q("3 mm")))
sketch12.addConstraint(Sketcher.Constraint("DistanceX", -1, 1, 2, 2, Q("135.76 mm")))
sketch12.addConstraint(Sketcher.Constraint("DistanceX", 0, 2, 0, 1, Q("25.881905 mm")))
pad11 = body.newObject("PartDesign::Pad", "Pad010")
pad11.Profile = sketch12
pad11.Type = "UpToFirst"
pad11.Reversed = True

# Sketch on XZ plane
sketch13 = body.newObject("Sketcher::SketchObject", "Sketch012")
sketch13.AttachmentSupport = (doc.getObject("XZ_Plane"), [""])
sketch13.MapMode = "FlatFace"
sketch13.AttachmentOffset = App.Placement(Vector(0, 0, 9.845), App.Rotation())
add_polygon(sketch13, [(-32.240951, -3), (-58.122855, -3), (-57.319008, 0), (-31.437103, 0)])  # lines 0-3
sketch13.addConstraint(Sketcher.Constraint("Horizontal", 0))
sketch13.addConstraint(Sketcher.Constraint("Horizontal", 2))
sketch13.addConstraint(Sketcher.Constraint("PointOnObject", 1, 2, -1))
sketch13.addConstraint(Sketcher.Constraint("Parallel", 1, 3))
sketch13.addConstraint(Sketcher.Constraint("Angle", 1, Q("75 deg")))
sketch13.addConstraint(Sketcher.Constraint("DistanceY", 0, 2, -1, 1, Q("3 mm")))
sketch13.addConstraint(Sketcher.Constraint("DistanceX", 0, 2, 0, 1, Q("25.881905 mm")))
sketch13.addConstraint(Sketcher.Constraint("DistanceX", 3, 2, -1, 1, Q("32.240951 mm")))
pad12 = body.newObject("PartDesign::Pad", "Pad011")
pad12.Profile = sketch13
pad12.Type = "UpToFirst"
pad12.Reversed = True
doc.recompute()

boolean7 = body.newObject("PartDesign::Boolean", "Boolean006")
boolean7.Type = "Fuse"
boolean7.addObjects([body6])

# Sketch on XZ plane
sketch14 = body.newObject("Sketcher::SketchObject", "Sketch013")
sketch14.AttachmentSupport = (doc.getObject("XZ_Plane"), [""])
sketch14.MapMode = "FlatFace"
sketch14.AttachmentOffset = App.Placement(Vector(0, 0, 67.095), App.Rotation())
add_polygon(sketch14, [(109.074248, -3), (109.878095, 0), (135.76, 0), (134.956152, -3)])  # lines 0-3
sketch14.addConstraint(Sketcher.Constraint("Horizontal", 1))
sketch14.addConstraint(Sketcher.Constraint("Horizontal", 3))
sketch14.addConstraint(Sketcher.Constraint("PointOnObject", 0, 2, -1))
sketch14.addConstraint(Sketcher.Constraint("Parallel", 0, 2))
sketch14.addConstraint(Sketcher.Constraint("Angle", 0, Q("75 deg")))
sketch14.addConstraint(Sketcher.Constraint("DistanceY", 2, 2, -1, 1, Q("3 mm")))
sketch14.addConstraint(Sketcher.Constraint("DistanceX", -1, 1, 1, 2, Q("135.76 mm")))
sketch14.addConstraint(Sketcher.Constraint("DistanceX", 1, 1, 1, 2, Q("25.881905 mm")))
pad13 = body.newObject("PartDesign::Pad", "Pad012")
pad13.Profile = sketch14
pad13.Type = "UpToFirst"
pad13.Reversed = True

# Sketch on XZ plane
sketch15 = body.newObject("Sketcher::SketchObject", "Sketch014")
sketch15.AttachmentSupport = (doc.getObject("XZ_Plane"), [""])
sketch15.MapMode = "FlatFace"
sketch15.AttachmentOffset = App.Placement(Vector(0, 0, 72.095), App.Rotation())
add_polygon(sketch15, [(109.074248, -3), (134.956152, -3), (135.76, 0), (109.878095, 0)])  # lines 0-3
sketch15.addConstraint(Sketcher.Constraint("Horizontal", 0))
sketch15.addConstraint(Sketcher.Constraint("Horizontal", 2))
sketch15.addConstraint(Sketcher.Constraint("PointOnObject", 1, 2, -1))
sketch15.addConstraint(Sketcher.Constraint("Parallel", 1, 3))
sketch15.addConstraint(Sketcher.Constraint("Angle", 1, Q("75 deg")))
sketch15.addConstraint(Sketcher.Constraint("DistanceY", 0, 2, -1, 1, Q("3 mm")))
sketch15.addConstraint(Sketcher.Constraint("DistanceX", -1, 1, 1, 2, Q("135.76 mm")))
sketch15.addConstraint(Sketcher.Constraint("DistanceX", 0, 1, 0, 2, Q("25.881905 mm")))
pad14 = body.newObject("PartDesign::Pad", "Pad013")
pad14.Profile = sketch15
pad14.Type = "UpToFirst"

# Sketch on XZ plane
sketch16 = body.newObject("Sketcher::SketchObject", "Sketch015")
sketch16.AttachmentSupport = (doc.getObject("XZ_Plane"), [""])
sketch16.MapMode = "FlatFace"
sketch16.AttachmentOffset = App.Placement(Vector(0, 0, 14.845), App.Rotation())
add_polygon(sketch16, [(-58.122855, -3), (-32.240951, -3), (-31.437103, 0), (-57.319008, 0)])  # lines 0-3
sketch16.addConstraint(Sketcher.Constraint("Horizontal", 0))
sketch16.addConstraint(Sketcher.Constraint("Horizontal", 2))
sketch16.addConstraint(Sketcher.Constraint("PointOnObject", 1, 2, -1))
sketch16.addConstraint(Sketcher.Constraint("Parallel", 1, 3))
sketch16.addConstraint(Sketcher.Constraint("Angle", 1, Q("75 deg")))
sketch16.addConstraint(Sketcher.Constraint("DistanceY", 0, 2, -1, 1, Q("3 mm")))
sketch16.addConstraint(Sketcher.Constraint("DistanceX", 0, 1, 0, 2, Q("25.881905 mm")))
sketch16.addConstraint(Sketcher.Constraint("DistanceX", 0, 2, -1, 1, Q("32.240951 mm")))
pad15 = body.newObject("PartDesign::Pad", "Pad014")
pad15.Profile = sketch16
pad15.Type = "UpToFirst"
doc.recompute()

fillet = body.newObject("PartDesign::Fillet", "Fillet")
fillet.Base = (pad15, edges_at(pad15, [
    (122.819, -9.845, 0),
    (-44.378, -9.845, 0),
    (122.819, -14.845, 0),
    (122.819, -67.095, 0),
    (122.819, -72.095, 0),
    (-44.378, -14.845, 0),
]))
fillet.Radius = 10

doc.recompute()
